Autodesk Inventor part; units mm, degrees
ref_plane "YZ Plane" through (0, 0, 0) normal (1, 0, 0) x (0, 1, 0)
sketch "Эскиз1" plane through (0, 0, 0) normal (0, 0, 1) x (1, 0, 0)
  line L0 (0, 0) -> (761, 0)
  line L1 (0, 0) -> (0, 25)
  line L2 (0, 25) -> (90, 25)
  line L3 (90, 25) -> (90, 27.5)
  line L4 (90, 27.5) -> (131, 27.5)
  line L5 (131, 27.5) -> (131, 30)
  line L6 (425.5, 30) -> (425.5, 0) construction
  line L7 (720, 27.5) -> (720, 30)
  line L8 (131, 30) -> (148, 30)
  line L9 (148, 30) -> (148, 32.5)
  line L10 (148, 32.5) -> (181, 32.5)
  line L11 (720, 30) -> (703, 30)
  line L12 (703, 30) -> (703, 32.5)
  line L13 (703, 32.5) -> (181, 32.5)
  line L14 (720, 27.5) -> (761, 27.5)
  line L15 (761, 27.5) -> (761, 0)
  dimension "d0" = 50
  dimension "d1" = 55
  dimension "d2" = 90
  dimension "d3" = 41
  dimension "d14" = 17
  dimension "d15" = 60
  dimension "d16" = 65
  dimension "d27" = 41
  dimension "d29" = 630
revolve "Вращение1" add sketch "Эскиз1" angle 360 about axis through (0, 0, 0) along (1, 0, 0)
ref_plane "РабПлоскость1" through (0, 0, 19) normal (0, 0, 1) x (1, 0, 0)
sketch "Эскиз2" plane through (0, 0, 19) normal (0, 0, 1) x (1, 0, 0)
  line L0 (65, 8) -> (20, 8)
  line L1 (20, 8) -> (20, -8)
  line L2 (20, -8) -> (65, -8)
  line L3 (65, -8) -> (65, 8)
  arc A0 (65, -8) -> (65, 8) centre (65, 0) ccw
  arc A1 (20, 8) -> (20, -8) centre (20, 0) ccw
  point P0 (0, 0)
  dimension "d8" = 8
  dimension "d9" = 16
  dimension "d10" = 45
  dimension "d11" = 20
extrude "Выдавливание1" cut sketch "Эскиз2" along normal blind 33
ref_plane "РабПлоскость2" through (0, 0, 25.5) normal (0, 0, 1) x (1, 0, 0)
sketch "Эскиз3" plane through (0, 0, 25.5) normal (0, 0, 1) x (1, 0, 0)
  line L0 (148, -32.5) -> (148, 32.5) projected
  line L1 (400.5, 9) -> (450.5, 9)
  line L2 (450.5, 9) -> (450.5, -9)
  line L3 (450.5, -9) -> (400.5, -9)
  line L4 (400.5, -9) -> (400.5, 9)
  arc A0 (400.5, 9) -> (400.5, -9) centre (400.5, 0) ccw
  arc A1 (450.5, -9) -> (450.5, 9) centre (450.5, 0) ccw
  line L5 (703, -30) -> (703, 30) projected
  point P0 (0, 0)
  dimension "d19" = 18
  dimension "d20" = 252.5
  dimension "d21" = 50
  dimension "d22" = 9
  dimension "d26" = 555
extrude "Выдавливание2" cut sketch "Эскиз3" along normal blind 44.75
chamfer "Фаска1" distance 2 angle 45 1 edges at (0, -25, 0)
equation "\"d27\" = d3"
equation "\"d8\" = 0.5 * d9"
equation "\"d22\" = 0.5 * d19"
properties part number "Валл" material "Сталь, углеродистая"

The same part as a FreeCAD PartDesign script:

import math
import FreeCAD as App
import Part
import Sketcher
Q = App.Units.Quantity


def edges_at(feature, points):
    """Names of the edges that pass closest to the given points."""
    edges = feature.Shape.Edges
    near = lambda p: min(range(len(edges)), key=lambda i: edges[i].distToShape(Part.Vertex(*p))[0])
    return sorted({f"Edge{near(p) + 1}" for p in points})


def add_polygon(sketch, points):
    """Adds a closed chain of lines whose ends are joined by coincident constraints."""
    first, n = sketch.GeometryCount, len(points)
    for a, b in zip(points, points[1:] + points[:1]):
        sketch.addGeometry(Part.LineSegment(App.Vector(*a, 0), App.Vector(*b, 0)), False)
    for i in range(n):
        sketch.addConstraint(Sketcher.Constraint("Coincident", first + i, 2, first + (i + 1) % n, 1))

doc = App.newDocument("Part")
body = doc.addObject("PartDesign::Body", "Body")

sketch1 = body.newObject("Sketcher::SketchObject", "Sketch")
sketch1.AttachmentSupport = (doc.getObject("XY_Plane"), [""])
sketch1.MapMode = "FlatFace"
add_polygon(sketch1, [(0, 25), (0, 0), (761, 0), (761, 27.5), (720, 27.5), (720, 30), (703, 30), (703, 32.5), (148, 32.5), (148, 30), (131, 30), (131, 27.5), (90, 27.5), (90, 25)])
sketch1.addConstraint([
    Sketcher.Constraint("Vertical", 0),
    Sketcher.Constraint("Horizontal", 1),
    Sketcher.Constraint("Vertical", 2),
    Sketcher.Constraint("Horizontal", 3),
    Sketcher.Constraint("Vertical", 4),
    Sketcher.Constraint("Horizontal", 5),
    Sketcher.Constraint("Vertical", 6),
    Sketcher.Constraint("Horizontal", 7),
    Sketcher.Constraint("Vertical", 8),
    Sketcher.Constraint("Horizontal", 9),
    Sketcher.Constraint("Vertical", 10),
    Sketcher.Constraint("Horizontal", 11),
    Sketcher.Constraint("Vertical", 12),
    Sketcher.Constraint("Horizontal", 13),
    Sketcher.Constraint("Coincident", 0, 2, -1, 1),
    Sketcher.Constraint("Horizontal", 5, 2, 8, 2),
    Sketcher.Constraint("Horizontal", 3, 2, 10, 2),
    Sketcher.Constraint("Equal", 5, 9),
    Sketcher.Constraint("Equal", 3, 11),
    Sketcher.Constraint("Equal", 4, 6),
    Sketcher.Constraint("Equal", 10, 12),
    Sketcher.Constraint("DistanceX", 3, 2, 3, 1, Q("41 mm")),
    Sketcher.Constraint("DistanceX", 5, 2, 5, 1, Q("17 mm")),
    Sketcher.Constraint("DistanceX", 13, 2, 13, 1, Q("90 mm")),
    Sketcher.Constraint("DistanceX", 1, 1, 1, 2, Q("761 mm")),
    Sketcher.Constraint("DistanceY", 0, 2, 0, 1, Q("25 mm")),
    Sketcher.Constraint("DistanceY", 2, 1, 2, 2, Q("27.5 mm")),
])
revolution = body.newObject("PartDesign::Revolution", "Revolution")
revolution.Profile = sketch1
revolution.ReferenceAxis = (sketch1, ["H_Axis"])
revolution.Angle = 360

sketch2 = body.newObject("Sketcher::SketchObject", "Sketch001")
sketch2.AttachmentSupport = (doc.getObject("XY_Plane"), [""])
sketch2.MapMode = "FlatFace"
sketch2.AttachmentOffset = App.Placement(App.Vector(0, 0, 19), App.Rotation())
sketch2.addGeometry([
    Part.LineSegment(App.Vector(20, -8, 0), App.Vector(65, -8, 0)),
    Part.ArcOfCircle(Part.Circle(App.Vector(65, 0, 0), App.Vector(0, 0, 1), 8), math.radians(-90), math.radians(90)),
    Part.LineSegment(App.Vector(65, 8, 0), App.Vector(20, 8, 0)),
    Part.ArcOfCircle(Part.Circle(App.Vector(20, 0, 0), App.Vector(0, 0, 1), 8), math.radians(90), math.radians(270)),
], False)
sketch2.addConstraint([
    Sketcher.Constraint("Tangent", 0, 2, 1, 1),
    Sketcher.Constraint("Tangent", 1, 2, 2, 1),
    Sketcher.Constraint("Tangent", 2, 2, 3, 1),
    Sketcher.Constraint("Tangent", 3, 2, 0, 1),
    Sketcher.Constraint("Horizontal", 0),
    Sketcher.Constraint("Horizontal", 2),
    Sketcher.Constraint("PointOnObject", 1, 3, -1),
    Sketcher.Constraint("Radius", 1, Q("8 mm")),
    Sketcher.Constraint("DistanceX", 0, 1, 0, 2, Q("45 mm")),
    Sketcher.Constraint("DistanceX", -1, 1, 3, 3, Q("20 mm")),
])
pocket1 = body.newObject("PartDesign::Pocket", "Pocket")
pocket1.Profile = sketch2
pocket1.Length = 33
pocket1.Reversed = True

sketch3 = body.newObject("Sketcher::SketchObject", "Sketch002")
sketch3.AttachmentSupport = (doc.getObject("XY_Plane"), [""])
sketch3.MapMode = "FlatFace"
sketch3.AttachmentOffset = App.Placement(App.Vector(0, 0, 25.5), App.Rotation())
sketch3.addGeometry([
    Part.LineSegment(App.Vector(450.5, 9, 0), App.Vector(400.5, 9, 0)),
    Part.ArcOfCircle(Part.Circle(App.Vector(400.5, 0, 0), App.Vector(0, 0, 1), 9), math.radians(90), math.radians(270)),
    Part.LineSegment(App.Vector(400.5, -9, 0), App.Vector(450.5, -9, 0)),
    Part.ArcOfCircle(Part.Circle(App.Vector(450.5, 0, 0), App.Vector(0, 0, 1), 9), math.radians(-90), math.radians(90)),
], False)
sketch3.addConstraint([
    Sketcher.Constraint("Tangent", 0, 2, 1, 1),
    Sketcher.Constraint("Tangent", 1, 2, 2, 1),
    Sketcher.Constraint("Tangent", 2, 2, 3, 1),
    Sketcher.Constraint("Tangent", 3, 2, 0, 1),
    Sketcher.Constraint("Horizontal", 0),
    Sketcher.Constraint("Horizontal", 2),
    Sketcher.Constraint("PointOnObject", 1, 3, -1),
    Sketcher.Constraint("Radius", 1, Q("9 mm")),
    Sketcher.Constraint("DistanceX", 0, 2, 0, 1, Q("50 mm")),
    Sketcher.Constraint("DistanceX", -1, 1, 1, 3, Q("400.5 mm")),
])
pocket2 = body.newObject("PartDesign::Pocket", "Pocket001")
pocket2.Profile = sketch3
pocket2.Length = 44.75
pocket2.Reversed = True
doc.recompute()

chamfer = body.newObject("PartDesign::Chamfer", "Chamfer")
chamfer.Base = (pocket2, edges_at(pocket2, [(0, -25, 0)]))
chamfer.Size = 2

doc.recompute()
